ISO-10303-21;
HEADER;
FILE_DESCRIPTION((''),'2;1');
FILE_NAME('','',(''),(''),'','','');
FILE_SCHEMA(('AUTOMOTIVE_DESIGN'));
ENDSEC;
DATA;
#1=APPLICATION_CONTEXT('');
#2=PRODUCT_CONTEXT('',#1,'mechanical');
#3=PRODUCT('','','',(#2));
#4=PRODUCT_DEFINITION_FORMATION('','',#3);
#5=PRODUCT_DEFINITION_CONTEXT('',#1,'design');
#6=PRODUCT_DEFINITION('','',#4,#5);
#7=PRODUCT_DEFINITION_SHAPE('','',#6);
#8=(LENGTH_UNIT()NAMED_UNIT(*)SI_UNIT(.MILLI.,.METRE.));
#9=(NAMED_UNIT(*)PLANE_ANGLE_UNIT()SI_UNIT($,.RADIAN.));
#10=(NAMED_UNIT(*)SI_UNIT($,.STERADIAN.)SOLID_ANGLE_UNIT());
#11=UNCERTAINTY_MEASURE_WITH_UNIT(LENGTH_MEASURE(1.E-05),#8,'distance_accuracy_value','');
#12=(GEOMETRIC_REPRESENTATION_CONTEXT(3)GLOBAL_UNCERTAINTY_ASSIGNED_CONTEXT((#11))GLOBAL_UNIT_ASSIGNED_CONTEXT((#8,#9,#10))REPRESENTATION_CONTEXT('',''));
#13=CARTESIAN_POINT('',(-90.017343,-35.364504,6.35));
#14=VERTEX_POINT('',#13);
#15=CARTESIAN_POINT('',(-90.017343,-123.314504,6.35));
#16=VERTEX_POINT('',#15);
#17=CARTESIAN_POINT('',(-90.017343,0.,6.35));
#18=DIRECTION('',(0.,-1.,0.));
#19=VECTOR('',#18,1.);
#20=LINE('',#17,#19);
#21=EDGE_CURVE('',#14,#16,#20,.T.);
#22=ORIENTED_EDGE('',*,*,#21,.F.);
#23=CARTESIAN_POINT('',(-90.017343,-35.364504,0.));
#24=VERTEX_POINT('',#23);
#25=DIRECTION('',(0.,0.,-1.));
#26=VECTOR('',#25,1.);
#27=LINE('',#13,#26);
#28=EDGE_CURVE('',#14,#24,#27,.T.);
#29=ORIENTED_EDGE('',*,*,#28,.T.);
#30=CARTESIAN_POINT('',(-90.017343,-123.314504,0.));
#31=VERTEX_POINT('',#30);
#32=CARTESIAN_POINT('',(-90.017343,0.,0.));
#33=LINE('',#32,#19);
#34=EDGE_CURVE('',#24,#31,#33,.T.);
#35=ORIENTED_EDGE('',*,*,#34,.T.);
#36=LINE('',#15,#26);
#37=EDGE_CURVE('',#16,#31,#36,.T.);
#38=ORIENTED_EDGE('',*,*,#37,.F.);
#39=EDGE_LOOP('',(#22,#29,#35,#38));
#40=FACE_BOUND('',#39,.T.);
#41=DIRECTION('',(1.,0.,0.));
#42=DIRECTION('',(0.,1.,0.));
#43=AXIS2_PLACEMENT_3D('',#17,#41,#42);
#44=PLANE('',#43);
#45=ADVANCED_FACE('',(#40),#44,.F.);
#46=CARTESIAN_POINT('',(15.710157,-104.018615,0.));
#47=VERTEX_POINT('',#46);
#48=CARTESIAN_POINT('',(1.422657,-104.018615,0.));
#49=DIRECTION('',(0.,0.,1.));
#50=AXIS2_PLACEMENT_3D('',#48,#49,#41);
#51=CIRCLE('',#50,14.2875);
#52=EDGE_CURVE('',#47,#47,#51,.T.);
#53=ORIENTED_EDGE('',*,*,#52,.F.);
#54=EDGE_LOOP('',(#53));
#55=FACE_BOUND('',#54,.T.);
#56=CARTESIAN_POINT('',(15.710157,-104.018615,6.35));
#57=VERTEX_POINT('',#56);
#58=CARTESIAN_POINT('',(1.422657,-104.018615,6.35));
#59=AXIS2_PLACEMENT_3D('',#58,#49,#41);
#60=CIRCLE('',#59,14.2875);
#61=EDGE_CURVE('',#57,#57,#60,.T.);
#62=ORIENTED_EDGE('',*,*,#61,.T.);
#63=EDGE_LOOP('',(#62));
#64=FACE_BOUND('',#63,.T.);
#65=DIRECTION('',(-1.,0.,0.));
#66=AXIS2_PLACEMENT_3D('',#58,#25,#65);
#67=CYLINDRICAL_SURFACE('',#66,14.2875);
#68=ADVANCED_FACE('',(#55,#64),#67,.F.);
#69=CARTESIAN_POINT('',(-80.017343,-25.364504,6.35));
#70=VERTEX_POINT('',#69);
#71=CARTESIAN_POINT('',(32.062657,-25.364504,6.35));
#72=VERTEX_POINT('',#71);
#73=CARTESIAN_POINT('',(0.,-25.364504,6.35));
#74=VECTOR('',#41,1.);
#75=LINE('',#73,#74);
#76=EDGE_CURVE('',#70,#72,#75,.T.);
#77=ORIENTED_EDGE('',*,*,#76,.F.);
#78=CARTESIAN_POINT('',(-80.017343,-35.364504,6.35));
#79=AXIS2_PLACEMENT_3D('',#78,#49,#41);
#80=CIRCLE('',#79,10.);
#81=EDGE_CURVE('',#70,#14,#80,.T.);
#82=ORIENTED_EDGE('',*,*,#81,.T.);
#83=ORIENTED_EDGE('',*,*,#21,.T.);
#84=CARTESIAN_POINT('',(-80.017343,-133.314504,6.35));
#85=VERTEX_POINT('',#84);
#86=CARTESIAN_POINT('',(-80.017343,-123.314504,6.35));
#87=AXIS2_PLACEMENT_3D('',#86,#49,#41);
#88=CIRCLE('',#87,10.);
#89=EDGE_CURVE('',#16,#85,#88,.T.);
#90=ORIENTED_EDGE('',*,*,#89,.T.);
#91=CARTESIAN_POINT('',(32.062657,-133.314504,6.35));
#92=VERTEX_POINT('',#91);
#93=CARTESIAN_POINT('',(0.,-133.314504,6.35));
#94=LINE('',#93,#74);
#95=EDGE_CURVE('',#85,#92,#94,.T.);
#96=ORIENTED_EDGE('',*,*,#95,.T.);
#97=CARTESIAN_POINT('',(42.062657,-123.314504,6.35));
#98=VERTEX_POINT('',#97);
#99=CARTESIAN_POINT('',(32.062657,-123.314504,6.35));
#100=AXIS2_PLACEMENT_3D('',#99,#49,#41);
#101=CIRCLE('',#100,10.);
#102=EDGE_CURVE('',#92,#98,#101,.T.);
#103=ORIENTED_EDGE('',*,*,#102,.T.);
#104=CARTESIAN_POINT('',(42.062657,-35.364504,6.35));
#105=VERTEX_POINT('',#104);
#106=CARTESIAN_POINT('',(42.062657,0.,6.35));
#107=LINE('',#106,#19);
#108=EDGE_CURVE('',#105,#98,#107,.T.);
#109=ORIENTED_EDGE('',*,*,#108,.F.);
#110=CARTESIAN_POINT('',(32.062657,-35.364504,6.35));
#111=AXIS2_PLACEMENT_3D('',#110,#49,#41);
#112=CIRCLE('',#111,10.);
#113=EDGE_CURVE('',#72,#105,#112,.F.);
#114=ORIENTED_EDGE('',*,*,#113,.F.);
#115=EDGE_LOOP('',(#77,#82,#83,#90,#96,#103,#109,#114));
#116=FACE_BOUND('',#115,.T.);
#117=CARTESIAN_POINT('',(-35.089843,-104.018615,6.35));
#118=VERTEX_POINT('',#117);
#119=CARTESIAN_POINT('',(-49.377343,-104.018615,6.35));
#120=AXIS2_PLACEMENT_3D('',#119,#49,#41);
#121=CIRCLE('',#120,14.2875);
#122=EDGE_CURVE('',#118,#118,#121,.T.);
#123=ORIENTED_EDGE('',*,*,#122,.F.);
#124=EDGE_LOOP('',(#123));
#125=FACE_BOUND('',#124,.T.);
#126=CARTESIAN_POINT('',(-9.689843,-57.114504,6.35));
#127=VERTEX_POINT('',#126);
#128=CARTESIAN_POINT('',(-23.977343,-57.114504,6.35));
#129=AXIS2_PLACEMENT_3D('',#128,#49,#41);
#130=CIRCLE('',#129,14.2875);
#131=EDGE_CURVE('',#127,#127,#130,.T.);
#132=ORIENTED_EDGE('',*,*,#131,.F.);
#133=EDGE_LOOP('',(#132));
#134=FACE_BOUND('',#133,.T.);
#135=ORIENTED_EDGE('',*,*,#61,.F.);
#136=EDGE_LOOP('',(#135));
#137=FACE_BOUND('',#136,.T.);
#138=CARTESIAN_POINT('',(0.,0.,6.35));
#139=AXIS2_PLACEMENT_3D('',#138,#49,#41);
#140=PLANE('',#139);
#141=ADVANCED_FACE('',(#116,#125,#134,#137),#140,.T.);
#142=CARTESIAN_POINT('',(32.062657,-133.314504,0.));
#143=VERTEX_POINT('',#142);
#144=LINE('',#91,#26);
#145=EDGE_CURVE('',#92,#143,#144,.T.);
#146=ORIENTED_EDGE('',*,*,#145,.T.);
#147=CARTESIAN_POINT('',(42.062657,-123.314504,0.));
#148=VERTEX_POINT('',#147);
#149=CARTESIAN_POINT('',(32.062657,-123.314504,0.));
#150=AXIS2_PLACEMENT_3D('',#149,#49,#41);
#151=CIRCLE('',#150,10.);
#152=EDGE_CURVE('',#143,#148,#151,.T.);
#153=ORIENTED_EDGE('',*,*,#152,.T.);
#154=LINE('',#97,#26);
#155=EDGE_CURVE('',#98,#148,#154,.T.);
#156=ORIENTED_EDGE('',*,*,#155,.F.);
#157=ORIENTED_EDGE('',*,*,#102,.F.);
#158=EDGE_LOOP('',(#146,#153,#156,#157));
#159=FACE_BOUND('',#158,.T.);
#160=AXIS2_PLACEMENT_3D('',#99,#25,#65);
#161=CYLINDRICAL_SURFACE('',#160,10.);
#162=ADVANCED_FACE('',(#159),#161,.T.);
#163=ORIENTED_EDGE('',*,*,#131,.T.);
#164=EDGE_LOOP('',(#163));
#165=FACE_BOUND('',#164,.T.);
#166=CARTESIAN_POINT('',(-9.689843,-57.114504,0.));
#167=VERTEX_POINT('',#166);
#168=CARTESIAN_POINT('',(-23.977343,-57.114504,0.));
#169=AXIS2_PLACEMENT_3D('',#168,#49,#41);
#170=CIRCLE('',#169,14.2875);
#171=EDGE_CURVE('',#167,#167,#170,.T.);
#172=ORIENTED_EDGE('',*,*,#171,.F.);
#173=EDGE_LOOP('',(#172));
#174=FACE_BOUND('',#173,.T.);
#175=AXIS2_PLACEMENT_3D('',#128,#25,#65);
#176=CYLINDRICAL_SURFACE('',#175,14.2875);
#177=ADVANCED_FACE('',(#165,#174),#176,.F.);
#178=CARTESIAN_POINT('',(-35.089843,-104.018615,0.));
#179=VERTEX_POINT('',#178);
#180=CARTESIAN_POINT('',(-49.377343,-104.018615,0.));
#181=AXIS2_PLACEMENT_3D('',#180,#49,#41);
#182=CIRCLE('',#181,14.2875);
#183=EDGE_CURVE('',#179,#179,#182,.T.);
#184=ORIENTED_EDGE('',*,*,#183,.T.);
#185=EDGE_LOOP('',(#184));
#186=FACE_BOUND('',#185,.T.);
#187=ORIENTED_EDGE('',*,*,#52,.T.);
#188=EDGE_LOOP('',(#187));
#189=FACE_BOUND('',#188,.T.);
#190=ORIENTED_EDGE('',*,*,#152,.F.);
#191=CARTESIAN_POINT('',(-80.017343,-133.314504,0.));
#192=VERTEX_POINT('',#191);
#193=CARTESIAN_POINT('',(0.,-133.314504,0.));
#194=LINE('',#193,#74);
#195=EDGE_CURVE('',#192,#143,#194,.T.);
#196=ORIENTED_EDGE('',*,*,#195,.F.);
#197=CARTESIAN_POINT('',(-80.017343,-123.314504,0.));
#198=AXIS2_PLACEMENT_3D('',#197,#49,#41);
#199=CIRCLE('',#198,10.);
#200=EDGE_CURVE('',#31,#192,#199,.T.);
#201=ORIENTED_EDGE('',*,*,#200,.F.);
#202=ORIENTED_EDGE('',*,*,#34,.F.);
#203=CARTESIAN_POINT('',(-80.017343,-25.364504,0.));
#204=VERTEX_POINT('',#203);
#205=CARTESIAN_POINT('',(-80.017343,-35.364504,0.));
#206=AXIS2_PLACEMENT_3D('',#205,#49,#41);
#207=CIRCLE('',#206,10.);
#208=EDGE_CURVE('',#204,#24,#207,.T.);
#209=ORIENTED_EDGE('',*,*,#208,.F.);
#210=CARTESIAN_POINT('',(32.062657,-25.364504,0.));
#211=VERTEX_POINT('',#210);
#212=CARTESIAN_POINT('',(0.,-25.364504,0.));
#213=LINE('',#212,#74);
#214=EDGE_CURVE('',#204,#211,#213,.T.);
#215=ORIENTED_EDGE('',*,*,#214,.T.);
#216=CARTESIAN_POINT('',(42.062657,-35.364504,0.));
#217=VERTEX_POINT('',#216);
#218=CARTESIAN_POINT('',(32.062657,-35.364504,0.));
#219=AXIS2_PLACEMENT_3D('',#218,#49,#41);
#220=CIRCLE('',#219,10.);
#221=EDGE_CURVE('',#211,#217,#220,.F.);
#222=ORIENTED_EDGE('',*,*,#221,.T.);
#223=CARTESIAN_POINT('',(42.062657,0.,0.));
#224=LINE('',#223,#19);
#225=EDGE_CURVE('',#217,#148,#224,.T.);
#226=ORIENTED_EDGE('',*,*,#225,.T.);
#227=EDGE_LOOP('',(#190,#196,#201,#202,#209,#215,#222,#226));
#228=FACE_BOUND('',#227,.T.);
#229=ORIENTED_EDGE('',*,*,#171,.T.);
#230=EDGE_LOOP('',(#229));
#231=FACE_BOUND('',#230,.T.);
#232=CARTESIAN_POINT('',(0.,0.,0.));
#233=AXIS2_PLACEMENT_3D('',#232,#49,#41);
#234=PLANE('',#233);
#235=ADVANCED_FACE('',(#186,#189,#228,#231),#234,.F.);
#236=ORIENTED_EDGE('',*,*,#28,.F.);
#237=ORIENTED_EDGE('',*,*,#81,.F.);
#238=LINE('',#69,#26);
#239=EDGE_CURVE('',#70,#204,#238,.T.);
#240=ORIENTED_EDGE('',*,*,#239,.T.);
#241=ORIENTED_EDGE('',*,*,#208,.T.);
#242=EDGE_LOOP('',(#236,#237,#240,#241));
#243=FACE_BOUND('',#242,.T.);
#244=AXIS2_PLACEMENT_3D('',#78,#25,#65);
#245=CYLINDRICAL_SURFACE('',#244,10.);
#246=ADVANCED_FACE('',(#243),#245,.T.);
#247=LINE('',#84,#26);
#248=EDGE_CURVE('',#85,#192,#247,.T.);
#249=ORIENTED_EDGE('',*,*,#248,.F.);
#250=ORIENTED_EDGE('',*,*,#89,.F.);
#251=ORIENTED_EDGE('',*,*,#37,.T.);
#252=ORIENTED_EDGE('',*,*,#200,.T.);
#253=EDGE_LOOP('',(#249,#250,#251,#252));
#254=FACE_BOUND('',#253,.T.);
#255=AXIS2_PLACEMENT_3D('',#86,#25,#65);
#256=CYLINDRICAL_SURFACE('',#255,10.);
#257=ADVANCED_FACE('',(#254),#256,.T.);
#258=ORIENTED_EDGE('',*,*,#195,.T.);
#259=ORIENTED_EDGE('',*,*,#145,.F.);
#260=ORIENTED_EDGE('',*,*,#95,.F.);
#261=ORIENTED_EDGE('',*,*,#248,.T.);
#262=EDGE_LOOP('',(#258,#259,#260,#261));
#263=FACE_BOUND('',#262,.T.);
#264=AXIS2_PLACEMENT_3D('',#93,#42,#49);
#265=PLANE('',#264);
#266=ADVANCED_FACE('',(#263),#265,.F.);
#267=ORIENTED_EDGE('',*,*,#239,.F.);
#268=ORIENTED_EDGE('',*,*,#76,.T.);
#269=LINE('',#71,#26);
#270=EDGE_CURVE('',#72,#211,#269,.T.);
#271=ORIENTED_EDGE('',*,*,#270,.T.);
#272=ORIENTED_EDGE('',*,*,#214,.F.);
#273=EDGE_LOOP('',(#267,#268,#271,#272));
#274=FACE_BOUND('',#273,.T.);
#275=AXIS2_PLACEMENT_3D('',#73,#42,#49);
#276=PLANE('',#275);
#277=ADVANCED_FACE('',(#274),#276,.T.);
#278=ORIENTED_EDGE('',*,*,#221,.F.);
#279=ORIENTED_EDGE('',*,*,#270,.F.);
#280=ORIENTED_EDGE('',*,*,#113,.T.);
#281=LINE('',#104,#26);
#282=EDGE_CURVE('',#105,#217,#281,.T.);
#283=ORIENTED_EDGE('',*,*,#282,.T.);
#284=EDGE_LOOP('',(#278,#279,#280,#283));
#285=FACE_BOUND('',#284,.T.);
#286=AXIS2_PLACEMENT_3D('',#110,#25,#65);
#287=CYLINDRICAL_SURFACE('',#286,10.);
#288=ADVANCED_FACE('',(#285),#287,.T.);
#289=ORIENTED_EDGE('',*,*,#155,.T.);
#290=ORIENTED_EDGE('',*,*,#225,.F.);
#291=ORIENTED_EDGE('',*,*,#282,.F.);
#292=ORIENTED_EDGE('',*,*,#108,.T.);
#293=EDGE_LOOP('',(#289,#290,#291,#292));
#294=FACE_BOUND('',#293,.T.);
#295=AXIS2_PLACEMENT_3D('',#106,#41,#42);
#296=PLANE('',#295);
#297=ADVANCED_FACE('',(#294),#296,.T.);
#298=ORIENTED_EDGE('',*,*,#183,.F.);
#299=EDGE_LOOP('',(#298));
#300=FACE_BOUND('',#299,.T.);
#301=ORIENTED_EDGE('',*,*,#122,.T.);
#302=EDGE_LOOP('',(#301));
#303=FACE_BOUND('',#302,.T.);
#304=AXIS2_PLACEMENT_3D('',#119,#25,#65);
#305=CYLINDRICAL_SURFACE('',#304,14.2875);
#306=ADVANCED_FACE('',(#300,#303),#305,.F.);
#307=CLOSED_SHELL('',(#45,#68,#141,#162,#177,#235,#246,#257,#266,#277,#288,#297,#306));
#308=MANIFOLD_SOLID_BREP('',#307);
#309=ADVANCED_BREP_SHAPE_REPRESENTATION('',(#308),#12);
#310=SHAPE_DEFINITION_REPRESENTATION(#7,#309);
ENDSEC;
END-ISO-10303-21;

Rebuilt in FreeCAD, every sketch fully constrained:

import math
import FreeCAD as App
import Part
import Sketcher

V = App.Vector
Q = App.Units.Quantity

doc = App.newDocument("Part")
body = doc.addObject("PartDesign::Body", "Body")

sketch1 = body.newObject("Sketcher::SketchObject", "Sketch")
sketch1.AttachmentSupport = (doc.getObject("XY_Plane"), [""])
sketch1.MapMode = "FlatFace"
sketch1.addGeometry([
    Part.LineSegment(V(-90, -35, 0), V(-90, -123, 0)),
    Part.ArcOfCircle(Part.Circle(V(-80, -123, 0), V(0, 0, 1), 10), math.radians(180), math.radians(270)),
    Part.LineSegment(V(-80, -133, 0), V(32, -133, 0)),
    Part.ArcOfCircle(Part.Circle(V(32, -123, 0), V(0, 0, 1), 10), math.radians(-90), math.radians(0)),
    Part.LineSegment(V(42, -123, 0), V(42, -35, 0)),
    Part.ArcOfCircle(Part.Circle(V(32, -35, 0), V(0, 0, 1), 10), math.radians(0), math.radians(90)),
    Part.LineSegment(V(32, -25, 0), V(-80, -25, 0)),
    Part.ArcOfCircle(Part.Circle(V(-80, -35, 0), V(0, 0, 1), 10), math.radians(90), math.radians(180)),
    Part.ArcOfCircle(Part.Circle(V(1, -104, 0), V(0, 0, 1), 14), math.radians(-159), math.radians(36)),
    Part.ArcOfCircle(Part.Circle(V(1, -104, 0), V(0, 0, 1), 14), math.radians(36), math.radians(201)),
    Part.ArcOfCircle(Part.Circle(V(-49, -104, 0), V(0, 0, 1), 14), math.radians(144), math.radians(339)),
    Part.ArcOfCircle(Part.Circle(V(-49, -104, 0), V(0, 0, 1), 14), math.radians(0), math.radians(144)),
    Part.ArcOfCircle(Part.Circle(V(-49, -104, 0), V(0, 0, 1), 14), math.radians(-21), math.radians(0)),
    Part.Circle(V(-24, -57, 0), V(0, 0, 1), 14),
], False)
sketch1.addConstraint([
    Sketcher.Constraint("Tangent", 0, 2, 1, 1),
    Sketcher.Constraint("Tangent", 1, 2, 2, 1),
    Sketcher.Constraint("Tangent", 2, 2, 3, 1),
    Sketcher.Constraint("Tangent", 3, 2, 4, 1),
    Sketcher.Constraint("Tangent", 4, 2, 5, 1),
    Sketcher.Constraint("Tangent", 5, 2, 6, 1),
    Sketcher.Constraint("Tangent", 6, 2, 7, 1),
    Sketcher.Constraint("Tangent", 7, 2, 0, 1),
    Sketcher.Constraint("Tangent", 8, 1, 9, 2),
    Sketcher.Constraint("Coincident", 9, 1, 8, 2),
    Sketcher.Constraint("Tangent", 10, 1, 11, 2),
    Sketcher.Constraint("Tangent", 11, 1, 12, 2),
    Sketcher.Constraint("Tangent", 12, 1, 10, 2),
    Sketcher.Constraint("Vertical", 0),
    Sketcher.Constraint("Horizontal", 2),
    Sketcher.Constraint("Vertical", 4),
    Sketcher.Constraint("Horizontal", 6),
    Sketcher.Constraint("Equal", 1, 3),
    Sketcher.Constraint("Equal", 3, 5),
    Sketcher.Constraint("Equal", 5, 7),
    Sketcher.Constraint("Equal", 9, 10),
    Sketcher.Constraint("Equal", 12, 13),
    Sketcher.Constraint("Horizontal", 9, 3, 10, 3),
    Sketcher.Constraint("Horizontal", 9, 1, 10, 1),
    Sketcher.Constraint("Horizontal", 12, 3, 11, 1),
    Sketcher.Constraint("Horizontal", 8, 1, 12, 1),
    Sketcher.Constraint("Diameter", 13, Q("1.125 in")),
    Sketcher.Constraint("DistanceX", 10, 3, 8, 3, Q("2 in")),
    Sketcher.Constraint("DistanceX", 10, 3, 13, 3, Q("1 in")),
    Sketcher.Constraint("DistanceX", 0, 2, 12, 3, Q("1.6 in")),
    Sketcher.Constraint("DistanceX", 9, 3, 3, 2, Q("1.6 in")),
    Sketcher.Constraint("Radius", 1, Q("10 mm")),
    Sketcher.Constraint("DistanceY", 13, 3, 5, 2, Q("1.25 in")),
    Sketcher.Constraint("DistanceY", 0, 2, 0, 1, Q("87.95 mm")),
    Sketcher.Constraint("DistanceX", 9, 3, 9, 1, Q("0.4543001 in")),
    Sketcher.Constraint("DistanceX", 8, 1, -1, 1, Q("11.938951 mm")),
    Sketcher.Constraint("DistanceX", -1, 1, 9, 1, Q("12.96188 mm")),
    Sketcher.Constraint("DistanceY", 9, 1, -1, 1, Q("95.593711 mm")),
    Sketcher.Constraint("DistanceY", 3, 3, 8, 3, Q("19.295889 mm")),
])
pad1 = body.newObject("PartDesign::Pad", "Pad")
pad1.Profile = sketch1
pad1.Length = Q("0.25 in")

doc.recompute()
